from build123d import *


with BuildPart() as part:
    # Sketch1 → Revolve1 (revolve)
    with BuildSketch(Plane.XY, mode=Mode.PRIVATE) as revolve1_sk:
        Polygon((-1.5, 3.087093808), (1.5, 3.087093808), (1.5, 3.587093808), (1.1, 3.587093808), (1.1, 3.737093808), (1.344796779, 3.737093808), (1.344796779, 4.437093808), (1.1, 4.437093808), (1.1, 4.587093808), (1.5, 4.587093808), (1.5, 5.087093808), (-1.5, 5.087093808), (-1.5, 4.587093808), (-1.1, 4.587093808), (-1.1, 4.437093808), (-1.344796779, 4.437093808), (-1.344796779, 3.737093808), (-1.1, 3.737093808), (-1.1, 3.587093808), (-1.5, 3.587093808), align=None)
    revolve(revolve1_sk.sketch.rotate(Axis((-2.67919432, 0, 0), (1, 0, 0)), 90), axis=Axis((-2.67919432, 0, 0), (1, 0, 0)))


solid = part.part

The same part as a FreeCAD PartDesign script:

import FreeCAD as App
import Part
import Sketcher

doc = App.newDocument("Part")
params = doc.addObject("Spreadsheet::Sheet", "Params")
for row, (alias, value) in enumerate([
    ("sketch1_width", "3 mm"),
    ("sketch1_width2", "0.4 mm"),
    ("sketch1_height", "0.5 mm"),
    ("sketch1_height2", "0.7 mm"),
    ("revolution_angle", "360 deg"),
], start=1):
    params.set(f"A{row}", alias)
    params.set(f"B{row}", "=" + value)
    params.setAlias(f"B{row}", alias)

body = doc.addObject("PartDesign::Body", "Body")

# Sketch on XY plane
sketch1 = body.newObject("Sketcher::SketchObject", "Sketch")
sketch1.AttachmentSupport = (doc.getObject("XY_Plane"), [""])
sketch1.MapMode = "FlatFace"
sketch1.addGeometry([
    Part.LineSegment(App.Vector(-1.5, 3.09, 0), App.Vector(1.5, 3.09, 0)),  # 0
    Part.LineSegment(App.Vector(1.5, 3.09, 0), App.Vector(1.5, 3.59, 0)),  # 1
    Part.LineSegment(App.Vector(1.5, 3.59, 0), App.Vector(1.1, 3.59, 0)),  # 2
    Part.LineSegment(App.Vector(1.1, 3.59, 0), App.Vector(1.1, 3.74, 0)),  # 3
    Part.LineSegment(App.Vector(1.1, 3.74, 0), App.Vector(1.34, 3.74, 0)),  # 4
    Part.LineSegment(App.Vector(1.34, 3.74, 0), App.Vector(1.34, 4.44, 0)),  # 5
    Part.LineSegment(App.Vector(1.34, 4.44, 0), App.Vector(1.1, 4.44, 0)),  # 6
    Part.LineSegment(App.Vector(1.1, 4.44, 0), App.Vector(1.1, 4.59, 0)),  # 7
    Part.LineSegment(App.Vector(1.1, 4.59, 0), App.Vector(1.5, 4.59, 0)),  # 8
    Part.LineSegment(App.Vector(1.5, 4.59, 0), App.Vector(1.5, 5.09, 0)),  # 9
    Part.LineSegment(App.Vector(1.5, 5.09, 0), App.Vector(-1.5, 5.09, 0)),  # 10
    Part.LineSegment(App.Vector(-1.5, 5.09, 0), App.Vector(-1.5, 4.59, 0)),  # 11
    Part.LineSegment(App.Vector(-1.5, 4.59, 0), App.Vector(-1.1, 4.59, 0)),  # 12
    Part.LineSegment(App.Vector(-1.1, 4.59, 0), App.Vector(-1.1, 4.44, 0)),  # 13
    Part.LineSegment(App.Vector(-1.1, 4.44, 0), App.Vector(-1.34, 4.44, 0)),  # 14
    Part.LineSegment(App.Vector(-1.34, 4.44, 0), App.Vector(-1.34, 3.74, 0)),  # 15
    Part.LineSegment(App.Vector(-1.34, 3.74, 0), App.Vector(-1.1, 3.74, 0)),  # 16
    Part.LineSegment(App.Vector(-1.1, 3.74, 0), App.Vector(-1.1, 3.59, 0)),  # 17
    Part.LineSegment(App.Vector(-1.1, 3.59, 0), App.Vector(-1.5, 3.59, 0)),  # 18
    Part.LineSegment(App.Vector(-1.5, 3.59, 0), App.Vector(-1.5, 3.09, 0)),  # 19
], False)
sketch1.addConstraint([
    Sketcher.Constraint("Coincident", 0, 2, 1, 1),
    Sketcher.Constraint("Coincident", 1, 2, 2, 1),
    Sketcher.Constraint("Coincident", 2, 2, 3, 1),
    Sketcher.Constraint("Coincident", 3, 2, 4, 1),
    Sketcher.Constraint("Coincident", 4, 2, 5, 1),
    Sketcher.Constraint("Coincident", 5, 2, 6, 1),
    Sketcher.Constraint("Coincident", 6, 2, 7, 1),
    Sketcher.Constraint("Coincident", 7, 2, 8, 1),
    Sketcher.Constraint("Coincident", 8, 2, 9, 1),
    Sketcher.Constraint("Coincident", 9, 2, 10, 1),
    Sketcher.Constraint("Coincident", 10, 2, 11, 1),
    Sketcher.Constraint("Coincident", 11, 2, 12, 1),
    Sketcher.Constraint("Coincident", 12, 2, 13, 1),
    Sketcher.Constraint("Coincident", 13, 2, 14, 1),
    Sketcher.Constraint("Coincident", 14, 2, 15, 1),
    Sketcher.Constraint("Coincident", 15, 2, 16, 1),
    Sketcher.Constraint("Coincident", 16, 2, 17, 1),
    Sketcher.Constraint("Coincident", 17, 2, 18, 1),
    Sketcher.Constraint("Coincident", 18, 2, 19, 1),
    Sketcher.Constraint("Coincident", 19, 2, 0, 1),
    Sketcher.Constraint("Horizontal", 0),
    Sketcher.Constraint("Vertical", 1),
    Sketcher.Constraint("Horizontal", 2),
    Sketcher.Constraint("Vertical", 3),
    Sketcher.Constraint("Horizontal", 4),
    Sketcher.Constraint("Vertical", 5),
    Sketcher.Constraint("Horizontal", 6),
    Sketcher.Constraint("Vertical", 7),
    Sketcher.Constraint("Horizontal", 8),
    Sketcher.Constraint("Vertical", 9),
    Sketcher.Constraint("Horizontal", 10),
    Sketcher.Constraint("Vertical", 11),
    Sketcher.Constraint("Horizontal", 12),
    Sketcher.Constraint("Vertical", 13),
    Sketcher.Constraint("Horizontal", 14),
    Sketcher.Constraint("Vertical", 15),
    Sketcher.Constraint("Horizontal", 16),
    Sketcher.Constraint("Vertical", 17),
    Sketcher.Constraint("Horizontal", 18),
    Sketcher.Constraint("Vertical", 19),
    Sketcher.Constraint("Symmetric", 8, 2, 11, 2, -2),
    Sketcher.Constraint("Symmetric", 6, 2, 13, 2, -2),
    Sketcher.Constraint("Symmetric", 4, 2, 15, 2, -2),
    Sketcher.Constraint("Symmetric", 2, 2, 17, 2, -2),
    Sketcher.Constraint("Vertical", 3, 2, 6, 2),
    Sketcher.Constraint("Vertical", 1, 2, 8, 2),
    Sketcher.Constraint("Vertical", 11, 2, 18, 2),
    Sketcher.Constraint("Equal", 3, 7),
    Sketcher.Constraint("Equal", 1, 9),
    Sketcher.Constraint("DistanceX", 0, 1, 0, 2, 3.0),
    Sketcher.Constraint("DistanceX", 2, 2, 2, 1, 0.4),
    Sketcher.Constraint("DistanceY", 1, 1, 1, 2, 0.5),
    Sketcher.Constraint("DistanceY", 5, 1, 5, 2, 0.7),
    Sketcher.Constraint("DistanceY", 2, 2, 7, 2, 1.0),
    Sketcher.Constraint("DistanceX", 4, 1, 4, 2, 0.244797),
    Sketcher.Constraint("DistanceY", -1, 1, 0, 2, 3.087094),
])
sketch1.setExpression("Constraints[49]", "Params.sketch1_width")
sketch1.setExpression("Constraints[50]", "Params.sketch1_width2")
sketch1.setExpression("Constraints[51]", "Params.sketch1_height")
sketch1.setExpression("Constraints[52]", "Params.sketch1_height2")
revolution = body.newObject("PartDesign::Revolution", "Revolution")
revolution.Profile = sketch1
revolution.ReferenceAxis = (sketch1, ["H_Axis"])
revolution.setExpression("Angle", "Params.revolution_angle")

doc.recompute()
